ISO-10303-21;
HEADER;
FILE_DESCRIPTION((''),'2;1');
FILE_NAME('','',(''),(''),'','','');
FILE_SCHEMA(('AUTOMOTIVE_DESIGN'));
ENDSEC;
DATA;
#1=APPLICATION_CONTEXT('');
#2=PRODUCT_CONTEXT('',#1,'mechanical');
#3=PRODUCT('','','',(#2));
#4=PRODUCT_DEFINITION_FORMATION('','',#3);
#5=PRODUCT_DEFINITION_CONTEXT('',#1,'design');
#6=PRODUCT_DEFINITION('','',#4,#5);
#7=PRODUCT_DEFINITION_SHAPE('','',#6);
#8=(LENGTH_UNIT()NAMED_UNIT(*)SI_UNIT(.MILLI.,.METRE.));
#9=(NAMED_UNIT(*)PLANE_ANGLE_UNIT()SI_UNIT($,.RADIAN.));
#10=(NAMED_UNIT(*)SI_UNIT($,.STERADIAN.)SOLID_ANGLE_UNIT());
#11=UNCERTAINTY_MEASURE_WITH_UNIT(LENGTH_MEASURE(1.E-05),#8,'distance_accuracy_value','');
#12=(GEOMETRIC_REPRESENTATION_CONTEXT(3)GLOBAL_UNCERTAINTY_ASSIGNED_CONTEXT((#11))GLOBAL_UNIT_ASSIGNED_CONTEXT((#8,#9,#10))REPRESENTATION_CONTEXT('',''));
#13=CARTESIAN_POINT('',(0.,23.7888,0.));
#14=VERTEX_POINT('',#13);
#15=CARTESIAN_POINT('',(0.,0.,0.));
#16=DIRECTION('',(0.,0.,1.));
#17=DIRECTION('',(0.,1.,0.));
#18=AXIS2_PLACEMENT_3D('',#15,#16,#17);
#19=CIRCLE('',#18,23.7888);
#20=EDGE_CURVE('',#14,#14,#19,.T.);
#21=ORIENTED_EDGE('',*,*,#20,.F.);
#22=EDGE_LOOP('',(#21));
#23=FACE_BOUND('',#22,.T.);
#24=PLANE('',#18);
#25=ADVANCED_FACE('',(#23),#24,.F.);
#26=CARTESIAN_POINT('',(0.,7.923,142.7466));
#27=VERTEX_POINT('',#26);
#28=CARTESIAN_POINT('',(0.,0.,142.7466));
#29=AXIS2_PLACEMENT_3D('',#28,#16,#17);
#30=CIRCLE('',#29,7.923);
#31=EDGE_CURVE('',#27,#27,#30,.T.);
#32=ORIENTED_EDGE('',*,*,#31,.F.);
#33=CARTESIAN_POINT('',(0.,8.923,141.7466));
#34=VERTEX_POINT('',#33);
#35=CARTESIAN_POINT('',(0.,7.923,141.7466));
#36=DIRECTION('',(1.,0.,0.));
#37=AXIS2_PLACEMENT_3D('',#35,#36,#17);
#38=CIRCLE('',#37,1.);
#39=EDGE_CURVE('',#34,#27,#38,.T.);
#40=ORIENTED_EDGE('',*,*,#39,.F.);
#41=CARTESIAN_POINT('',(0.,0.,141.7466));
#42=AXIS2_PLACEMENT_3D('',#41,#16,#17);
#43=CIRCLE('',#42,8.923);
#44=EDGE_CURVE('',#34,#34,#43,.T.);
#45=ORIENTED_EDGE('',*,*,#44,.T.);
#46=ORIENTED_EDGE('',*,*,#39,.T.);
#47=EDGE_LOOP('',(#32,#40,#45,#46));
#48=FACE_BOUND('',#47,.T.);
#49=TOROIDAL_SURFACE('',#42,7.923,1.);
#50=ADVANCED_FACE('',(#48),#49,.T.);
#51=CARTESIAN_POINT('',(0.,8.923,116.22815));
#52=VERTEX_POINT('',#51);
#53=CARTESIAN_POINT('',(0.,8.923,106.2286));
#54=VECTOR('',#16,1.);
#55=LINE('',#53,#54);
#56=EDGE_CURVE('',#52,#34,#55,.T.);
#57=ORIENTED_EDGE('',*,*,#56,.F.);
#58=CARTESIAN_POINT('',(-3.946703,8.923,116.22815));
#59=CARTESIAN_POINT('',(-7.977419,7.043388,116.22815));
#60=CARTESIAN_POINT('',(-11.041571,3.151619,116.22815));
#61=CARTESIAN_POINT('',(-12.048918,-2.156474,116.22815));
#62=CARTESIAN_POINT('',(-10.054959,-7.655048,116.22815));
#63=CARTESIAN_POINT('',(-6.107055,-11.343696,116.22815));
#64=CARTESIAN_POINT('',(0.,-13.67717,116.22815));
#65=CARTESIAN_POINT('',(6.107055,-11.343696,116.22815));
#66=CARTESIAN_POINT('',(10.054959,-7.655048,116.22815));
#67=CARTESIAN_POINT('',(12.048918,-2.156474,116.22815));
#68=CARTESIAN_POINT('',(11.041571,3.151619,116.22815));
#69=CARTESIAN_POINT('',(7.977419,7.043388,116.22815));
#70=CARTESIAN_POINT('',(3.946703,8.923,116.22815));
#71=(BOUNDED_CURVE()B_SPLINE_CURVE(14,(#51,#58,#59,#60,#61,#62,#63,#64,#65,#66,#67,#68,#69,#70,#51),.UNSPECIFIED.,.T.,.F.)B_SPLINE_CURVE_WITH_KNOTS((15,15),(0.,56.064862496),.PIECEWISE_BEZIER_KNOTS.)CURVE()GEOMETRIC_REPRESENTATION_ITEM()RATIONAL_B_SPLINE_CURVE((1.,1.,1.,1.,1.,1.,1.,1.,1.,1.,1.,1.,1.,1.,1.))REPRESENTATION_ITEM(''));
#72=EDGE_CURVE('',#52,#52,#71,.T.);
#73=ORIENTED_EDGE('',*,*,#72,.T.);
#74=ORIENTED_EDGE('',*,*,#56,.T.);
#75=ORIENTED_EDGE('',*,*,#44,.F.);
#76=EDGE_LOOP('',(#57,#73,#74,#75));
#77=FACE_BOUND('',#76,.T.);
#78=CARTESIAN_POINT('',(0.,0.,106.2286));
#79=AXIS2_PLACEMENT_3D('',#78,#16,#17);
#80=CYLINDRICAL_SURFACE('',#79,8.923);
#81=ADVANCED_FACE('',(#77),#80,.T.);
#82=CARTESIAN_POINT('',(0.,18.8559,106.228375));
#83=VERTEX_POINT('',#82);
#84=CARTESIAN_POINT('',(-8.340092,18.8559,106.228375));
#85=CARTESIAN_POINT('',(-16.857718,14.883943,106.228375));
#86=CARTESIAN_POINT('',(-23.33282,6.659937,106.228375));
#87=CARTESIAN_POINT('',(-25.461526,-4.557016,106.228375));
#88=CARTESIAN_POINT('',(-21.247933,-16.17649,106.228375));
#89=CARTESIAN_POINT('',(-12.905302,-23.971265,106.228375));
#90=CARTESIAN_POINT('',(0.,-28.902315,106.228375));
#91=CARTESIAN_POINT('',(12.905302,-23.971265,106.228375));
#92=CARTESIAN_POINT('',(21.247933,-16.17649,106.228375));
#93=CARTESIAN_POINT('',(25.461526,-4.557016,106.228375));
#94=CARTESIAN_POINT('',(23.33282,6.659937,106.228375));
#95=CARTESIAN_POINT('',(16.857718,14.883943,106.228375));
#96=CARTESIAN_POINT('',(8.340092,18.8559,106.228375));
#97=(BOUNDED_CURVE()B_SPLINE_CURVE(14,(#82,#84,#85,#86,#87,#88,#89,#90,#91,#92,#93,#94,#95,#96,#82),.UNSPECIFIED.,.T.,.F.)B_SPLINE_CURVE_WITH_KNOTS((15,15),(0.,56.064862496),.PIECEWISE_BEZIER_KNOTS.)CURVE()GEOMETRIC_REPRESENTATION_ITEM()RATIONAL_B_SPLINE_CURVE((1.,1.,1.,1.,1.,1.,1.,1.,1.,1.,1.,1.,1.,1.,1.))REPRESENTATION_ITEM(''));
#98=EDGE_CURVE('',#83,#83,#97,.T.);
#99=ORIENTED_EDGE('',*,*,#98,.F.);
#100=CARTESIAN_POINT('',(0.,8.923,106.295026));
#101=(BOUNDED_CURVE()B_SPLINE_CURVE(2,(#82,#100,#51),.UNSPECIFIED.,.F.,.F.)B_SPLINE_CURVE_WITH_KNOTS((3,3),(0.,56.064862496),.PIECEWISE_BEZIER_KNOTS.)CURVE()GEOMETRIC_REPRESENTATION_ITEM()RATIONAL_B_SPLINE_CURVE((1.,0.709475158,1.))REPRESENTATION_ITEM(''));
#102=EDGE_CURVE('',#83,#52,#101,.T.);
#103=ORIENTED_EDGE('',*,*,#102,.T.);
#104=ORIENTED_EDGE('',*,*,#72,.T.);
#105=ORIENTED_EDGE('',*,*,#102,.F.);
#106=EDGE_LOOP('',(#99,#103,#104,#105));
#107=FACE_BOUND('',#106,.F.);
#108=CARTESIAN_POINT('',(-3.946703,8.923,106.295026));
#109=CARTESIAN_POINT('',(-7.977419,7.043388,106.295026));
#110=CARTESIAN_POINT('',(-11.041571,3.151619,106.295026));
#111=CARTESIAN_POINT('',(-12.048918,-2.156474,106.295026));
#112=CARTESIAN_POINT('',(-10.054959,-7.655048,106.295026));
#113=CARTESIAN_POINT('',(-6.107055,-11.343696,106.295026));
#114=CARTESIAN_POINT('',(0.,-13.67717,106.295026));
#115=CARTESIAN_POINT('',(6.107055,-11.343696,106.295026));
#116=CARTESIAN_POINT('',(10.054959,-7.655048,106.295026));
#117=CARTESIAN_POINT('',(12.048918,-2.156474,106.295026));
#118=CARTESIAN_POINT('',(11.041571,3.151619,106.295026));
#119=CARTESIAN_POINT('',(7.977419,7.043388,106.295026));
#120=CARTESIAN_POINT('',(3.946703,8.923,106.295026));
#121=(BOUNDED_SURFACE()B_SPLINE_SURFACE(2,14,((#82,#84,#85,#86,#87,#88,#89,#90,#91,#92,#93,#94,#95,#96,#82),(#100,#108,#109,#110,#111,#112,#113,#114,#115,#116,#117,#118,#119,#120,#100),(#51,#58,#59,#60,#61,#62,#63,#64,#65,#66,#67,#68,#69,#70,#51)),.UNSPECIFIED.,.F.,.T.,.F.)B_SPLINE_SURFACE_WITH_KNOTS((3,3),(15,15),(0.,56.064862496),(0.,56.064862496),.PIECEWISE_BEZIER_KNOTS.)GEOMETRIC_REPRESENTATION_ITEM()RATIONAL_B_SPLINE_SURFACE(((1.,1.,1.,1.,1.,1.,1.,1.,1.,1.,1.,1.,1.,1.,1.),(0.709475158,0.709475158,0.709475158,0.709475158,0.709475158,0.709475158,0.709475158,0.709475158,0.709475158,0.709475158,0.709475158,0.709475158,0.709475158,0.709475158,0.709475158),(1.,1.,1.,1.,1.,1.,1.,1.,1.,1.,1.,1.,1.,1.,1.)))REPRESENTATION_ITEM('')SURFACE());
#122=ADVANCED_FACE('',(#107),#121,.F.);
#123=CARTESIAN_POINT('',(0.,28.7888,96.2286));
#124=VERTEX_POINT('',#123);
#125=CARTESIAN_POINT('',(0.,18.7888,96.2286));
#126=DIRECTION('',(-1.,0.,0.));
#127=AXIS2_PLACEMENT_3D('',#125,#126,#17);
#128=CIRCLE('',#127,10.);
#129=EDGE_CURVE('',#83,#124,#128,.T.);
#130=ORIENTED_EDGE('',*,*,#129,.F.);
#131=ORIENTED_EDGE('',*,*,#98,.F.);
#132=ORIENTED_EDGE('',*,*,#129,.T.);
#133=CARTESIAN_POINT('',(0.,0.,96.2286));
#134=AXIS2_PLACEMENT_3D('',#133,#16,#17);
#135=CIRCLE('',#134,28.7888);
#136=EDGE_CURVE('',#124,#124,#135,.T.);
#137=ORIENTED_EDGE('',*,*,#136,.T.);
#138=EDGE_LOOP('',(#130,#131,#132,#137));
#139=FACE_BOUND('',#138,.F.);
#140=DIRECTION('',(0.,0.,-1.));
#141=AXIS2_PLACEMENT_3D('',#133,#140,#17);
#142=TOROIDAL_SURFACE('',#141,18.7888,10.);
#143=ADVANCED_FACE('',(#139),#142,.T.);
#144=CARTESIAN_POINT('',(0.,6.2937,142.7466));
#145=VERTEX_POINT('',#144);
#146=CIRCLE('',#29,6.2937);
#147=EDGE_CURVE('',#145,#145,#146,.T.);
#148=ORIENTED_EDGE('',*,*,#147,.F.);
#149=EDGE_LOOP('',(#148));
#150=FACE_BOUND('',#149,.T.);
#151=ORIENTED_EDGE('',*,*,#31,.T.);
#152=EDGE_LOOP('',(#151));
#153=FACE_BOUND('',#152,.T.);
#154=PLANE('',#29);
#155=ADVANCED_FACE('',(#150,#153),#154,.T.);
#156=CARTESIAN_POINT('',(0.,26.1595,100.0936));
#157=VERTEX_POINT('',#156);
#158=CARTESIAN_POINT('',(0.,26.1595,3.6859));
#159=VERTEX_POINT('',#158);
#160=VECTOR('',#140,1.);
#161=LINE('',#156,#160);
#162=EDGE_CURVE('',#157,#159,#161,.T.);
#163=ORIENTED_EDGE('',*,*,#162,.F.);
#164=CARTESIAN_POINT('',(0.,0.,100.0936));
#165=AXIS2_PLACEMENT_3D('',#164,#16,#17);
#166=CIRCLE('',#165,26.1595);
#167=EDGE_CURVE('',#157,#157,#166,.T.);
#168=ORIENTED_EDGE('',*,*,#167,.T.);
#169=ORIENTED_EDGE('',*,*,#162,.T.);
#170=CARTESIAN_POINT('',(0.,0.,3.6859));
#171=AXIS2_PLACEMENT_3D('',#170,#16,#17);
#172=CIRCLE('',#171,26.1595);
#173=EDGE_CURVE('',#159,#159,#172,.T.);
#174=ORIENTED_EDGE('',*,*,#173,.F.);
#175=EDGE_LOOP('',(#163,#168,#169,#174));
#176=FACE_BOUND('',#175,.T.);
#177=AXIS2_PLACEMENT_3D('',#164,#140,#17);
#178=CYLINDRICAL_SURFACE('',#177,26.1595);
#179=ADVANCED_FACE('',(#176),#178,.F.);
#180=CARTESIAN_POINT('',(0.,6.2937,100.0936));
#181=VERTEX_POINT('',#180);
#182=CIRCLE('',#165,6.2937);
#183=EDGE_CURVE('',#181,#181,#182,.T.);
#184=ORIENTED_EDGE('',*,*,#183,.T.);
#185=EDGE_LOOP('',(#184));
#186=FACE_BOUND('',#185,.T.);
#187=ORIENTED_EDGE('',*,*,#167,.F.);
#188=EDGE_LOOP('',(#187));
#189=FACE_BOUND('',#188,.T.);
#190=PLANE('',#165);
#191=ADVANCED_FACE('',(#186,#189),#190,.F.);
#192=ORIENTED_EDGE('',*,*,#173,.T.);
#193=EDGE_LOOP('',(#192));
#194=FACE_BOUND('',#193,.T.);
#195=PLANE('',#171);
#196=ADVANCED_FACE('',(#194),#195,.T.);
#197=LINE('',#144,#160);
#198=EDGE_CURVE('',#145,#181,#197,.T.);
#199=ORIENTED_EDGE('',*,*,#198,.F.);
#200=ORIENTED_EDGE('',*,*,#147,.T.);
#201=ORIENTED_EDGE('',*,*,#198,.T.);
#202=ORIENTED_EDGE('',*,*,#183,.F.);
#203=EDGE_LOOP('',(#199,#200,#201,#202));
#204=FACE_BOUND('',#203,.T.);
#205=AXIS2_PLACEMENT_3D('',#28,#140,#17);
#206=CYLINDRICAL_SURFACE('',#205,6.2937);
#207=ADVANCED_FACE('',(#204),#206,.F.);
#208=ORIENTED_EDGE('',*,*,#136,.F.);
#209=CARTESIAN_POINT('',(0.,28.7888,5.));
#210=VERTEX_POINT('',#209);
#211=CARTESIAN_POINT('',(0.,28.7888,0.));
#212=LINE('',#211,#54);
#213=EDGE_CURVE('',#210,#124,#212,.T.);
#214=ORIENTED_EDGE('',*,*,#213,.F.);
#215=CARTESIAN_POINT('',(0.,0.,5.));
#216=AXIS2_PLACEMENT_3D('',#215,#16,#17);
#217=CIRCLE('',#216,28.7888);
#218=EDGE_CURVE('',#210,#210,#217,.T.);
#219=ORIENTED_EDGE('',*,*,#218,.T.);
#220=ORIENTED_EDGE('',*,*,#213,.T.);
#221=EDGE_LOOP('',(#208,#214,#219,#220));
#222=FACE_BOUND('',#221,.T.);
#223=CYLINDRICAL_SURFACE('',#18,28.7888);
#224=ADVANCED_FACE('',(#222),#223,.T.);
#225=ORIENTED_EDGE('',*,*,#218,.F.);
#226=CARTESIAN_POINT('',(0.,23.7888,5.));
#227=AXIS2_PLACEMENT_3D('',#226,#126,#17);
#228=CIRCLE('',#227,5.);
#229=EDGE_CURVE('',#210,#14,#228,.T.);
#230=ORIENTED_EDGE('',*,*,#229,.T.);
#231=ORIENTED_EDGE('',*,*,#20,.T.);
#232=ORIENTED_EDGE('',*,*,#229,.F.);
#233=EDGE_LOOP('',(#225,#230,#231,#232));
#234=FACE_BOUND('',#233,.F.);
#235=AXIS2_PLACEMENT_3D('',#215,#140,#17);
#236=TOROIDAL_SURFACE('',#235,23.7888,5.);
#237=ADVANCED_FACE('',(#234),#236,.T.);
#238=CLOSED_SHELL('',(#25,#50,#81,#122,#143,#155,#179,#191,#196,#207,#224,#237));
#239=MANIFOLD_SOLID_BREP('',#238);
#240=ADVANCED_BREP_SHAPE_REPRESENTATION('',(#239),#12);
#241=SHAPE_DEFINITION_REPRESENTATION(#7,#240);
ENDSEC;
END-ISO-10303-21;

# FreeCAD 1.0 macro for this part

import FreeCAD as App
import Part
import Sketcher

V = App.Vector


def edges_at(feature, points):
    """Names of the edges that pass closest to the given points."""
    edges = feature.Shape.Edges
    near = lambda p: min(range(len(edges)), key=lambda i: edges[i].distToShape(Part.Vertex(*p))[0])
    return sorted({f"Edge{near(p) + 1}" for p in points})

doc = App.newDocument("Part")
params = doc.addObject("Spreadsheet::Sheet", "Params")
for row, (alias, value) in enumerate([
    ("revolution_angle", "360 deg"),
    ("fillet_radius", "10 mm"),
    ("fillet2_radius", "10 mm"),
    ("fillet3_radius", "1 mm"),
    ("fillet4_radius", "5 mm"),
], start=1):
    params.set(f"A{row}", alias)
    params.set(f"B{row}", "=" + value)
    params.setAlias(f"B{row}", alias)

body = doc.addObject("PartDesign::Body", "Body")

# Sketch on YZ plane
sketch1 = body.newObject("Sketcher::SketchObject", "Sketch")
sketch1.AttachmentSupport = (doc.getObject("YZ_Plane"), [""])
sketch1.MapMode = "FlatFace"
sketch1.addGeometry([
    Part.LineSegment(V(0, 3.7, 0), V(0, 0, 0)),  # 0
    Part.LineSegment(V(0, 0, 0), V(28.8, 0, 0)),  # 1
    Part.LineSegment(V(28.8, 0, 0), V(28.8, 106.2, 0)),  # 2
    Part.LineSegment(V(28.8, 106.2, 0), V(8.9, 106.2, 0)),  # 3
    Part.LineSegment(V(8.9, 106.2, 0), V(8.9, 142.7, 0)),  # 4
    Part.LineSegment(V(8.9, 142.7, 0), V(6.3, 142.7, 0)),  # 5
    Part.LineSegment(V(6.3, 142.7, 0), V(6.3, 100.1, 0)),  # 6
    Part.LineSegment(V(6.3, 100.1, 0), V(26.2, 100.1, 0)),  # 7
    Part.LineSegment(V(26.2, 100.1, 0), V(26.2, 3.7, 0)),  # 8
    Part.LineSegment(V(26.2, 3.7, 0), V(0, 3.7, 0)),  # 9
], False)
sketch1.addConstraint([
    Sketcher.Constraint("Coincident", 0, 2, 1, 1),
    Sketcher.Constraint("Coincident", 1, 2, 2, 1),
    Sketcher.Constraint("Coincident", 2, 2, 3, 1),
    Sketcher.Constraint("Coincident", 3, 2, 4, 1),
    Sketcher.Constraint("Coincident", 4, 2, 5, 1),
    Sketcher.Constraint("Coincident", 5, 2, 6, 1),
    Sketcher.Constraint("Coincident", 6, 2, 7, 1),
    Sketcher.Constraint("Coincident", 7, 2, 8, 1),
    Sketcher.Constraint("Coincident", 8, 2, 9, 1),
    Sketcher.Constraint("Coincident", 9, 2, 0, 1),
    Sketcher.Constraint("Vertical", 0),
    Sketcher.Constraint("Horizontal", 1),
    Sketcher.Constraint("Vertical", 2),
    Sketcher.Constraint("Horizontal", 3),
    Sketcher.Constraint("Vertical", 4),
    Sketcher.Constraint("Horizontal", 5),
    Sketcher.Constraint("Vertical", 6),
    Sketcher.Constraint("Horizontal", 7),
    Sketcher.Constraint("Vertical", 8),
    Sketcher.Constraint("Horizontal", 9),
    Sketcher.Constraint("Coincident", 0, 2, -1, 1),
    Sketcher.Constraint("Equal", 3, 7),
    Sketcher.Constraint("DistanceY", 0, 2, 0, 1, 3.686),
    Sketcher.Constraint("DistanceY", 4, 1, 4, 2, 36.518),
    Sketcher.Constraint("DistanceY", 6, 2, 6, 1, 42.653),
    Sketcher.Constraint("DistanceX", 1, 1, 1, 2, 28.7888),
    Sketcher.Constraint("DistanceX", 3, 2, 3, 1, 19.8658),
    Sketcher.Constraint("DistanceX", 5, 2, 5, 1, 2.6293),
    Sketcher.Constraint("DistanceY", 2, 1, 2, 2, 106.2286),
])
revolution = body.newObject("PartDesign::Revolution", "Revolution")
revolution.Profile = sketch1
revolution.ReferenceAxis = (sketch1, ["V_Axis"])
revolution.setExpression("Angle", "Params.revolution_angle")
doc.recompute()

fillet = body.newObject("PartDesign::Fillet", "Fillet")
fillet.Base = (revolution, edges_at(revolution, [(-26.841, 10.411, 106.229)]))
fillet.setExpression("Radius", "Params.fillet_radius")
doc.recompute()

fillet2 = body.newObject("PartDesign::Fillet", "Fillet001")
fillet2.Base = (fillet, edges_at(fillet, [(-8.319, 3.227, 106.229)]))
fillet2.setExpression("Radius", "Params.fillet2_radius")
doc.recompute()

fillet3 = body.newObject("PartDesign::Fillet", "Fillet002")
fillet3.Base = (fillet2, edges_at(fillet2, [(-8.319, 3.227, 142.747)]))
fillet3.setExpression("Radius", "Params.fillet3_radius")
doc.recompute()

fillet4 = body.newObject("PartDesign::Fillet", "Fillet003")
fillet4.Base = (fillet3, edges_at(fillet3, [(-26.841, 10.411, 0)]))
fillet4.setExpression("Radius", "Params.fillet4_radius")

doc.recompute()
